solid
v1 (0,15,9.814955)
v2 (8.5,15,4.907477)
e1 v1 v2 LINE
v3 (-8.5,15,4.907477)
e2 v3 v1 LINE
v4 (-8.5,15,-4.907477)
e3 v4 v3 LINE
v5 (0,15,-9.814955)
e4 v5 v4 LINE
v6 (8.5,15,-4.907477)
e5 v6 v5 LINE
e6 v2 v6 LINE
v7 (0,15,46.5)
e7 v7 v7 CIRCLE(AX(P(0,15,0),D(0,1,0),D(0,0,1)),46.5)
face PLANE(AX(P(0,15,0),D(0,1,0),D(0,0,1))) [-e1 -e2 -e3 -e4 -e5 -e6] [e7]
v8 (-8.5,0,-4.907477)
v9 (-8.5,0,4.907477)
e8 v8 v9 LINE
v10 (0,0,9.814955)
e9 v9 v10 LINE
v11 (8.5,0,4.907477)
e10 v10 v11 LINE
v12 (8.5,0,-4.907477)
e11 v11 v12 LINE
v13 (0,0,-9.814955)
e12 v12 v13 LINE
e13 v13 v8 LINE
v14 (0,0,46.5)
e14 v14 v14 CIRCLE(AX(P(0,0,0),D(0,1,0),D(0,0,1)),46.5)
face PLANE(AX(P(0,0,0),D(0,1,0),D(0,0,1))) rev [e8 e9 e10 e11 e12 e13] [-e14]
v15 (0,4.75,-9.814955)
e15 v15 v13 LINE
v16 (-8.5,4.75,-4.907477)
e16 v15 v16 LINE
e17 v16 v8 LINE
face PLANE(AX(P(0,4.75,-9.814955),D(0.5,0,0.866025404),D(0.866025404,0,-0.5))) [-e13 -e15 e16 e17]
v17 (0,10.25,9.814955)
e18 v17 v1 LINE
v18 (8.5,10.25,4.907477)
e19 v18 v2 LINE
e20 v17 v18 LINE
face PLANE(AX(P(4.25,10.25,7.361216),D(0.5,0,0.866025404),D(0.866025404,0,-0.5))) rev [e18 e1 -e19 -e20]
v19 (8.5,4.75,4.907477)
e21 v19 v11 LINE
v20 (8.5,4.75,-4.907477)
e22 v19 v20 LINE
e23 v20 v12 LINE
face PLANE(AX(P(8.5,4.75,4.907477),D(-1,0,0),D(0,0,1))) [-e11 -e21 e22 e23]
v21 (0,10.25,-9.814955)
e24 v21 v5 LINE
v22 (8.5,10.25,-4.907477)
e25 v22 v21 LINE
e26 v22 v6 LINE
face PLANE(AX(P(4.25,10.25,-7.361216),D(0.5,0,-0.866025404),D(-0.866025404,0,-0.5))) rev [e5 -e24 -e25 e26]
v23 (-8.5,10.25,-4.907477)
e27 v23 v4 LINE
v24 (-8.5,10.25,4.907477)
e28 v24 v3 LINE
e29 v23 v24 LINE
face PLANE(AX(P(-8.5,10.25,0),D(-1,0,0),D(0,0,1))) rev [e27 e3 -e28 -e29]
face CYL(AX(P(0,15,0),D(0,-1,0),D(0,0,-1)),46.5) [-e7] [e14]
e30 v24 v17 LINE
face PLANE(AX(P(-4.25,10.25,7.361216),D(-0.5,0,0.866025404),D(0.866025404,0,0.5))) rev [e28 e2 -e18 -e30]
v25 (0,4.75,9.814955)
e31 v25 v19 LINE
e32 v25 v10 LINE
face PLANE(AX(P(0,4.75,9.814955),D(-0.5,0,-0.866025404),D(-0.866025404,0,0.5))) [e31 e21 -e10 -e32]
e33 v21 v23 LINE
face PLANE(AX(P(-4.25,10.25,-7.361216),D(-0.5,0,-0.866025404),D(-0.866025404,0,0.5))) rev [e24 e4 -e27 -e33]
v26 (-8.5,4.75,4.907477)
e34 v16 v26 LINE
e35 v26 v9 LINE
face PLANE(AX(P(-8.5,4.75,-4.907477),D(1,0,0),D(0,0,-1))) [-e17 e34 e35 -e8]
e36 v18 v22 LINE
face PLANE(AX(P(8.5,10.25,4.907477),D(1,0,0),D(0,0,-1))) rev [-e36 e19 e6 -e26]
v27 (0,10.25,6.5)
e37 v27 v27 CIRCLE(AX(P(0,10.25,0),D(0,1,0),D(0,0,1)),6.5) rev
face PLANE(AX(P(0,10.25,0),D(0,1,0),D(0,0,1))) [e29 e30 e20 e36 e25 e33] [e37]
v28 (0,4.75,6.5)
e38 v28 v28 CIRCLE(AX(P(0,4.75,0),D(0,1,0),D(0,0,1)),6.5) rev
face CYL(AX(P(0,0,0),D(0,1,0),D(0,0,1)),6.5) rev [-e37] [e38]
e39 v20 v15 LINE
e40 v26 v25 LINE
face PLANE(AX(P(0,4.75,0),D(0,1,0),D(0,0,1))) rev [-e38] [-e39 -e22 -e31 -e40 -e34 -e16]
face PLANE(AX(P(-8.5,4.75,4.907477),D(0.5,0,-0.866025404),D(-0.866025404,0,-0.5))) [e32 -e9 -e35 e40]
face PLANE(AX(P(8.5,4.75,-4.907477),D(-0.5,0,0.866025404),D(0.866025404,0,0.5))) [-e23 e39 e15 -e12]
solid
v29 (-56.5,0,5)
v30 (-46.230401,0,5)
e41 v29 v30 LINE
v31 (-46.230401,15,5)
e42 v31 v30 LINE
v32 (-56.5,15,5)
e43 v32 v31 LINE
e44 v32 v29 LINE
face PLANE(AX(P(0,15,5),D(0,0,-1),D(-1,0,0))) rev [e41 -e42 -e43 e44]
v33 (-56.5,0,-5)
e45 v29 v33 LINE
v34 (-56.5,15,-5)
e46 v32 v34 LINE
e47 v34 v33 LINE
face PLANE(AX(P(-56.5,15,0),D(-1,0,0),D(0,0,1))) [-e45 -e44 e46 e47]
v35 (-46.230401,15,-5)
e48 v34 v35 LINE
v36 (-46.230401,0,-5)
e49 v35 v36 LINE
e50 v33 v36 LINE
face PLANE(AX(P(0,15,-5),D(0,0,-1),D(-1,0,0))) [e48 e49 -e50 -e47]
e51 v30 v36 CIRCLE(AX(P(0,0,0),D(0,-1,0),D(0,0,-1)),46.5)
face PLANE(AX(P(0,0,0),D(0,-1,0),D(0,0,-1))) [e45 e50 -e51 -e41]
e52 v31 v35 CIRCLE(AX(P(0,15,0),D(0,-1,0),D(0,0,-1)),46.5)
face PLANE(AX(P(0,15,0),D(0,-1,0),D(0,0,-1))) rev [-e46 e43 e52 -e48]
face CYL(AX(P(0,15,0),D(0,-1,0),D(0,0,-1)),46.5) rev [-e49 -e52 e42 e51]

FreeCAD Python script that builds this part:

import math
import FreeCAD as App
import Part
import Sketcher

V = App.Vector
Q = App.Units.Quantity

doc = App.newDocument("Part")
body = doc.addObject("PartDesign::Body", "Body")

# Sketch on XZ plane
sketch1 = body.newObject("Sketcher::SketchObject", "Sketch")
sketch1.AttachmentSupport = (doc.getObject("XZ_Plane"), [""])
sketch1.MapMode = "FlatFace"
sketch1.addGeometry(Part.Circle(V(0, 0, 0), V(0, 0, 1), 46), False)
sketch1.addConstraint([
    Sketcher.Constraint("Coincident", 0, 3, -1, 1),
    Sketcher.Constraint("Diameter", 0, Q("93 mm")),
])
pad1 = body.newObject("PartDesign::Pad", "Pad")
pad1.Profile = sketch1
pad1.Length = 15
pad1.Reversed = True

# Sketch on XZ plane
sketch2 = body.newObject("Sketcher::SketchObject", "Sketch001")
sketch2.AttachmentSupport = (doc.getObject("XZ_Plane"), [""])
sketch2.MapMode = "FlatFace"
sketch2.AttachmentOffset = App.Placement(V(0, 0, -15), App.Rotation())
sketch2.addGeometry(Part.Circle(V(0, 0, 0), V(0, 0, 1), 6), False)
sketch2.addConstraint([
    Sketcher.Constraint("Coincident", 0, 3, -1, 1),
    Sketcher.Constraint("Diameter", 0, Q("13 mm")),
])
pocket1 = body.newObject("PartDesign::Pocket", "Pocket")
pocket1.Profile = sketch2
pocket1.Type = "ThroughAll"
pocket1.Reversed = True

# Sketch on XZ plane
sketch3 = body.newObject("Sketcher::SketchObject", "Sketch002")
sketch3.AttachmentSupport = (doc.getObject("XZ_Plane"), [""])
sketch3.MapMode = "FlatFace"
sketch3.AttachmentOffset = App.Placement(V(0, 0, -15), App.Rotation())
sketch3.addGeometry([
    Part.LineSegment(V(0, -10, 0), V(-8, -5, 0)),  # 0
    Part.LineSegment(V(-8, -5, 0), V(-8, 5, 0)),  # 1
    Part.LineSegment(V(-8, 5, 0), V(0, 10, 0)),  # 2
    Part.LineSegment(V(0, 10, 0), V(8, 5, 0)),  # 3
    Part.LineSegment(V(8, 5, 0), V(8, -5, 0)),  # 4
    Part.LineSegment(V(8, -5, 0), V(0, -10, 0)),  # 5
], False)
sketch3.addConstraint([
    Sketcher.Constraint("Coincident", 0, 2, 1, 1),
    Sketcher.Constraint("Coincident", 1, 2, 2, 1),
    Sketcher.Constraint("Coincident", 2, 2, 3, 1),
    Sketcher.Constraint("Coincident", 3, 2, 4, 1),
    Sketcher.Constraint("Coincident", 4, 2, 5, 1),
    Sketcher.Constraint("Coincident", 5, 2, 0, 1),
    Sketcher.Constraint("Vertical", 1),
    Sketcher.Constraint("Vertical", 4),
    Sketcher.Constraint("Symmetric", 0, 2, 3, 2, -1, 1),
    Sketcher.Constraint("Symmetric", 2, 2, 5, 2, -1, 1),
    Sketcher.Constraint("PointOnObject", 2, 2, -2),
    Sketcher.Constraint("Parallel", 2, 5),
    Sketcher.Constraint("Horizontal", 1, 2, 3, 2),
    Sketcher.Constraint("Angle", 0, Q("150 deg")),
    Sketcher.Constraint("DistanceX", 1, 2, 3, 2, Q("17 mm")),
    Sketcher.Constraint("DistanceY", 1, 1, 1, 2, Q("9.814955 mm")),
])
pocket2 = body.newObject("PartDesign::Pocket", "Pocket001")
pocket2.Profile = sketch3
pocket2.Length = 4.75
pocket2.Reversed = True

# Sketch on XZ plane
sketch4 = body.newObject("Sketcher::SketchObject", "Sketch003")
sketch4.AttachmentSupport = (doc.getObject("XZ_Plane"), [""])
sketch4.MapMode = "FlatFace"
sketch4.addGeometry([
    Part.LineSegment(V(0, 10, 0), V(-8, 5, 0)),  # 0
    Part.LineSegment(V(-8, 5, 0), V(-8, -5, 0)),  # 1
    Part.LineSegment(V(-8, -5, 0), V(0, -10, 0)),  # 2
    Part.LineSegment(V(0, -10, 0), V(8, -5, 0)),  # 3
    Part.LineSegment(V(8, -5, 0), V(8, 5, 0)),  # 4
    Part.LineSegment(V(8, 5, 0), V(0, 10, 0)),  # 5
], False)
sketch4.addConstraint([
    Sketcher.Constraint("Coincident", 0, 2, 1, 1),
    Sketcher.Constraint("Coincident", 1, 2, 2, 1),
    Sketcher.Constraint("Coincident", 2, 2, 3, 1),
    Sketcher.Constraint("Coincident", 3, 2, 4, 1),
    Sketcher.Constraint("Coincident", 4, 2, 5, 1),
    Sketcher.Constraint("Coincident", 5, 2, 0, 1),
    Sketcher.Constraint("Vertical", 1),
    Sketcher.Constraint("Vertical", 4),
    Sketcher.Constraint("Symmetric", 0, 2, 3, 2, -1, 1),
    Sketcher.Constraint("Symmetric", 2, 2, 5, 2, -1, 1),
    Sketcher.Constraint("PointOnObject", 2, 2, -2),
    Sketcher.Constraint("Parallel", 2, 5),
    Sketcher.Constraint("Horizontal", 1, 2, 3, 2),
    Sketcher.Constraint("Angle", 0, Q("-150 deg")),
    Sketcher.Constraint("DistanceX", 1, 2, 3, 2, Q("17 mm")),
    Sketcher.Constraint("DistanceY", 1, 2, 1, 1, Q("9.814955 mm")),
])
pocket3 = body.newObject("PartDesign::Pocket", "Pocket002")
pocket3.Profile = sketch4
pocket3.Length = 4.75
body2 = doc.addObject("PartDesign::Body", "Body001")

# Sketch on XZ plane
sketch5 = body2.newObject("Sketcher::SketchObject", "Sketch004")
sketch5.AttachmentSupport = (doc.getObject("XZ_Plane001"), [""])
sketch5.MapMode = "FlatFace"
sketch5.addGeometry([
    Part.ArcOfCircle(Part.Circle(V(0, 0, 0), V(0, 0, 1), 46), math.radians(180), math.radians(186.17)),  # 0
    Part.ArcOfCircle(Part.Circle(V(0, 0, 0), V(0, 0, 1), 46), math.radians(173.83), math.radians(180)),  # 1
    Part.LineSegment(V(-46, 5, 0), V(-56, 5, 0)),  # 2
    Part.LineSegment(V(-56, 5, 0), V(-56, -5, 0)),  # 3
    Part.LineSegment(V(-56, -5, 0), V(-46, -5, 0)),  # 4
], False)
sketch5.addConstraint([
    Sketcher.Constraint("Tangent", 0, 1, 1, 2),
    Sketcher.Constraint("Coincident", 1, 1, 2, 1),
    Sketcher.Constraint("Coincident", 2, 2, 3, 1),
    Sketcher.Constraint("Coincident", 3, 2, 4, 1),
    Sketcher.Constraint("Coincident", 4, 2, 0, 2),
    Sketcher.Constraint("Horizontal", 2),
    Sketcher.Constraint("Vertical", 3),
    Sketcher.Constraint("Horizontal", 4),
    Sketcher.Constraint("Coincident", 0, 3, -1, 1),
    Sketcher.Constraint("Equal", 0, 1),
    Sketcher.Constraint("PointOnObject", 0, 1, -1),
    Sketcher.Constraint("Vertical", 1, 1, 4, 2),
    Sketcher.Constraint("Radius", 0, Q("46.5 mm")),
    Sketcher.Constraint("DistanceY", 3, 2, 3, 1, Q("10 mm")),
    Sketcher.Constraint("DistanceX", 2, 2, 0, 1, Q("10 mm")),
])
pad2 = body2.newObject("PartDesign::Pad", "Pad001")
pad2.Profile = sketch5
pad2.Length = 15
pad2.Reversed = True

doc.recompute()
